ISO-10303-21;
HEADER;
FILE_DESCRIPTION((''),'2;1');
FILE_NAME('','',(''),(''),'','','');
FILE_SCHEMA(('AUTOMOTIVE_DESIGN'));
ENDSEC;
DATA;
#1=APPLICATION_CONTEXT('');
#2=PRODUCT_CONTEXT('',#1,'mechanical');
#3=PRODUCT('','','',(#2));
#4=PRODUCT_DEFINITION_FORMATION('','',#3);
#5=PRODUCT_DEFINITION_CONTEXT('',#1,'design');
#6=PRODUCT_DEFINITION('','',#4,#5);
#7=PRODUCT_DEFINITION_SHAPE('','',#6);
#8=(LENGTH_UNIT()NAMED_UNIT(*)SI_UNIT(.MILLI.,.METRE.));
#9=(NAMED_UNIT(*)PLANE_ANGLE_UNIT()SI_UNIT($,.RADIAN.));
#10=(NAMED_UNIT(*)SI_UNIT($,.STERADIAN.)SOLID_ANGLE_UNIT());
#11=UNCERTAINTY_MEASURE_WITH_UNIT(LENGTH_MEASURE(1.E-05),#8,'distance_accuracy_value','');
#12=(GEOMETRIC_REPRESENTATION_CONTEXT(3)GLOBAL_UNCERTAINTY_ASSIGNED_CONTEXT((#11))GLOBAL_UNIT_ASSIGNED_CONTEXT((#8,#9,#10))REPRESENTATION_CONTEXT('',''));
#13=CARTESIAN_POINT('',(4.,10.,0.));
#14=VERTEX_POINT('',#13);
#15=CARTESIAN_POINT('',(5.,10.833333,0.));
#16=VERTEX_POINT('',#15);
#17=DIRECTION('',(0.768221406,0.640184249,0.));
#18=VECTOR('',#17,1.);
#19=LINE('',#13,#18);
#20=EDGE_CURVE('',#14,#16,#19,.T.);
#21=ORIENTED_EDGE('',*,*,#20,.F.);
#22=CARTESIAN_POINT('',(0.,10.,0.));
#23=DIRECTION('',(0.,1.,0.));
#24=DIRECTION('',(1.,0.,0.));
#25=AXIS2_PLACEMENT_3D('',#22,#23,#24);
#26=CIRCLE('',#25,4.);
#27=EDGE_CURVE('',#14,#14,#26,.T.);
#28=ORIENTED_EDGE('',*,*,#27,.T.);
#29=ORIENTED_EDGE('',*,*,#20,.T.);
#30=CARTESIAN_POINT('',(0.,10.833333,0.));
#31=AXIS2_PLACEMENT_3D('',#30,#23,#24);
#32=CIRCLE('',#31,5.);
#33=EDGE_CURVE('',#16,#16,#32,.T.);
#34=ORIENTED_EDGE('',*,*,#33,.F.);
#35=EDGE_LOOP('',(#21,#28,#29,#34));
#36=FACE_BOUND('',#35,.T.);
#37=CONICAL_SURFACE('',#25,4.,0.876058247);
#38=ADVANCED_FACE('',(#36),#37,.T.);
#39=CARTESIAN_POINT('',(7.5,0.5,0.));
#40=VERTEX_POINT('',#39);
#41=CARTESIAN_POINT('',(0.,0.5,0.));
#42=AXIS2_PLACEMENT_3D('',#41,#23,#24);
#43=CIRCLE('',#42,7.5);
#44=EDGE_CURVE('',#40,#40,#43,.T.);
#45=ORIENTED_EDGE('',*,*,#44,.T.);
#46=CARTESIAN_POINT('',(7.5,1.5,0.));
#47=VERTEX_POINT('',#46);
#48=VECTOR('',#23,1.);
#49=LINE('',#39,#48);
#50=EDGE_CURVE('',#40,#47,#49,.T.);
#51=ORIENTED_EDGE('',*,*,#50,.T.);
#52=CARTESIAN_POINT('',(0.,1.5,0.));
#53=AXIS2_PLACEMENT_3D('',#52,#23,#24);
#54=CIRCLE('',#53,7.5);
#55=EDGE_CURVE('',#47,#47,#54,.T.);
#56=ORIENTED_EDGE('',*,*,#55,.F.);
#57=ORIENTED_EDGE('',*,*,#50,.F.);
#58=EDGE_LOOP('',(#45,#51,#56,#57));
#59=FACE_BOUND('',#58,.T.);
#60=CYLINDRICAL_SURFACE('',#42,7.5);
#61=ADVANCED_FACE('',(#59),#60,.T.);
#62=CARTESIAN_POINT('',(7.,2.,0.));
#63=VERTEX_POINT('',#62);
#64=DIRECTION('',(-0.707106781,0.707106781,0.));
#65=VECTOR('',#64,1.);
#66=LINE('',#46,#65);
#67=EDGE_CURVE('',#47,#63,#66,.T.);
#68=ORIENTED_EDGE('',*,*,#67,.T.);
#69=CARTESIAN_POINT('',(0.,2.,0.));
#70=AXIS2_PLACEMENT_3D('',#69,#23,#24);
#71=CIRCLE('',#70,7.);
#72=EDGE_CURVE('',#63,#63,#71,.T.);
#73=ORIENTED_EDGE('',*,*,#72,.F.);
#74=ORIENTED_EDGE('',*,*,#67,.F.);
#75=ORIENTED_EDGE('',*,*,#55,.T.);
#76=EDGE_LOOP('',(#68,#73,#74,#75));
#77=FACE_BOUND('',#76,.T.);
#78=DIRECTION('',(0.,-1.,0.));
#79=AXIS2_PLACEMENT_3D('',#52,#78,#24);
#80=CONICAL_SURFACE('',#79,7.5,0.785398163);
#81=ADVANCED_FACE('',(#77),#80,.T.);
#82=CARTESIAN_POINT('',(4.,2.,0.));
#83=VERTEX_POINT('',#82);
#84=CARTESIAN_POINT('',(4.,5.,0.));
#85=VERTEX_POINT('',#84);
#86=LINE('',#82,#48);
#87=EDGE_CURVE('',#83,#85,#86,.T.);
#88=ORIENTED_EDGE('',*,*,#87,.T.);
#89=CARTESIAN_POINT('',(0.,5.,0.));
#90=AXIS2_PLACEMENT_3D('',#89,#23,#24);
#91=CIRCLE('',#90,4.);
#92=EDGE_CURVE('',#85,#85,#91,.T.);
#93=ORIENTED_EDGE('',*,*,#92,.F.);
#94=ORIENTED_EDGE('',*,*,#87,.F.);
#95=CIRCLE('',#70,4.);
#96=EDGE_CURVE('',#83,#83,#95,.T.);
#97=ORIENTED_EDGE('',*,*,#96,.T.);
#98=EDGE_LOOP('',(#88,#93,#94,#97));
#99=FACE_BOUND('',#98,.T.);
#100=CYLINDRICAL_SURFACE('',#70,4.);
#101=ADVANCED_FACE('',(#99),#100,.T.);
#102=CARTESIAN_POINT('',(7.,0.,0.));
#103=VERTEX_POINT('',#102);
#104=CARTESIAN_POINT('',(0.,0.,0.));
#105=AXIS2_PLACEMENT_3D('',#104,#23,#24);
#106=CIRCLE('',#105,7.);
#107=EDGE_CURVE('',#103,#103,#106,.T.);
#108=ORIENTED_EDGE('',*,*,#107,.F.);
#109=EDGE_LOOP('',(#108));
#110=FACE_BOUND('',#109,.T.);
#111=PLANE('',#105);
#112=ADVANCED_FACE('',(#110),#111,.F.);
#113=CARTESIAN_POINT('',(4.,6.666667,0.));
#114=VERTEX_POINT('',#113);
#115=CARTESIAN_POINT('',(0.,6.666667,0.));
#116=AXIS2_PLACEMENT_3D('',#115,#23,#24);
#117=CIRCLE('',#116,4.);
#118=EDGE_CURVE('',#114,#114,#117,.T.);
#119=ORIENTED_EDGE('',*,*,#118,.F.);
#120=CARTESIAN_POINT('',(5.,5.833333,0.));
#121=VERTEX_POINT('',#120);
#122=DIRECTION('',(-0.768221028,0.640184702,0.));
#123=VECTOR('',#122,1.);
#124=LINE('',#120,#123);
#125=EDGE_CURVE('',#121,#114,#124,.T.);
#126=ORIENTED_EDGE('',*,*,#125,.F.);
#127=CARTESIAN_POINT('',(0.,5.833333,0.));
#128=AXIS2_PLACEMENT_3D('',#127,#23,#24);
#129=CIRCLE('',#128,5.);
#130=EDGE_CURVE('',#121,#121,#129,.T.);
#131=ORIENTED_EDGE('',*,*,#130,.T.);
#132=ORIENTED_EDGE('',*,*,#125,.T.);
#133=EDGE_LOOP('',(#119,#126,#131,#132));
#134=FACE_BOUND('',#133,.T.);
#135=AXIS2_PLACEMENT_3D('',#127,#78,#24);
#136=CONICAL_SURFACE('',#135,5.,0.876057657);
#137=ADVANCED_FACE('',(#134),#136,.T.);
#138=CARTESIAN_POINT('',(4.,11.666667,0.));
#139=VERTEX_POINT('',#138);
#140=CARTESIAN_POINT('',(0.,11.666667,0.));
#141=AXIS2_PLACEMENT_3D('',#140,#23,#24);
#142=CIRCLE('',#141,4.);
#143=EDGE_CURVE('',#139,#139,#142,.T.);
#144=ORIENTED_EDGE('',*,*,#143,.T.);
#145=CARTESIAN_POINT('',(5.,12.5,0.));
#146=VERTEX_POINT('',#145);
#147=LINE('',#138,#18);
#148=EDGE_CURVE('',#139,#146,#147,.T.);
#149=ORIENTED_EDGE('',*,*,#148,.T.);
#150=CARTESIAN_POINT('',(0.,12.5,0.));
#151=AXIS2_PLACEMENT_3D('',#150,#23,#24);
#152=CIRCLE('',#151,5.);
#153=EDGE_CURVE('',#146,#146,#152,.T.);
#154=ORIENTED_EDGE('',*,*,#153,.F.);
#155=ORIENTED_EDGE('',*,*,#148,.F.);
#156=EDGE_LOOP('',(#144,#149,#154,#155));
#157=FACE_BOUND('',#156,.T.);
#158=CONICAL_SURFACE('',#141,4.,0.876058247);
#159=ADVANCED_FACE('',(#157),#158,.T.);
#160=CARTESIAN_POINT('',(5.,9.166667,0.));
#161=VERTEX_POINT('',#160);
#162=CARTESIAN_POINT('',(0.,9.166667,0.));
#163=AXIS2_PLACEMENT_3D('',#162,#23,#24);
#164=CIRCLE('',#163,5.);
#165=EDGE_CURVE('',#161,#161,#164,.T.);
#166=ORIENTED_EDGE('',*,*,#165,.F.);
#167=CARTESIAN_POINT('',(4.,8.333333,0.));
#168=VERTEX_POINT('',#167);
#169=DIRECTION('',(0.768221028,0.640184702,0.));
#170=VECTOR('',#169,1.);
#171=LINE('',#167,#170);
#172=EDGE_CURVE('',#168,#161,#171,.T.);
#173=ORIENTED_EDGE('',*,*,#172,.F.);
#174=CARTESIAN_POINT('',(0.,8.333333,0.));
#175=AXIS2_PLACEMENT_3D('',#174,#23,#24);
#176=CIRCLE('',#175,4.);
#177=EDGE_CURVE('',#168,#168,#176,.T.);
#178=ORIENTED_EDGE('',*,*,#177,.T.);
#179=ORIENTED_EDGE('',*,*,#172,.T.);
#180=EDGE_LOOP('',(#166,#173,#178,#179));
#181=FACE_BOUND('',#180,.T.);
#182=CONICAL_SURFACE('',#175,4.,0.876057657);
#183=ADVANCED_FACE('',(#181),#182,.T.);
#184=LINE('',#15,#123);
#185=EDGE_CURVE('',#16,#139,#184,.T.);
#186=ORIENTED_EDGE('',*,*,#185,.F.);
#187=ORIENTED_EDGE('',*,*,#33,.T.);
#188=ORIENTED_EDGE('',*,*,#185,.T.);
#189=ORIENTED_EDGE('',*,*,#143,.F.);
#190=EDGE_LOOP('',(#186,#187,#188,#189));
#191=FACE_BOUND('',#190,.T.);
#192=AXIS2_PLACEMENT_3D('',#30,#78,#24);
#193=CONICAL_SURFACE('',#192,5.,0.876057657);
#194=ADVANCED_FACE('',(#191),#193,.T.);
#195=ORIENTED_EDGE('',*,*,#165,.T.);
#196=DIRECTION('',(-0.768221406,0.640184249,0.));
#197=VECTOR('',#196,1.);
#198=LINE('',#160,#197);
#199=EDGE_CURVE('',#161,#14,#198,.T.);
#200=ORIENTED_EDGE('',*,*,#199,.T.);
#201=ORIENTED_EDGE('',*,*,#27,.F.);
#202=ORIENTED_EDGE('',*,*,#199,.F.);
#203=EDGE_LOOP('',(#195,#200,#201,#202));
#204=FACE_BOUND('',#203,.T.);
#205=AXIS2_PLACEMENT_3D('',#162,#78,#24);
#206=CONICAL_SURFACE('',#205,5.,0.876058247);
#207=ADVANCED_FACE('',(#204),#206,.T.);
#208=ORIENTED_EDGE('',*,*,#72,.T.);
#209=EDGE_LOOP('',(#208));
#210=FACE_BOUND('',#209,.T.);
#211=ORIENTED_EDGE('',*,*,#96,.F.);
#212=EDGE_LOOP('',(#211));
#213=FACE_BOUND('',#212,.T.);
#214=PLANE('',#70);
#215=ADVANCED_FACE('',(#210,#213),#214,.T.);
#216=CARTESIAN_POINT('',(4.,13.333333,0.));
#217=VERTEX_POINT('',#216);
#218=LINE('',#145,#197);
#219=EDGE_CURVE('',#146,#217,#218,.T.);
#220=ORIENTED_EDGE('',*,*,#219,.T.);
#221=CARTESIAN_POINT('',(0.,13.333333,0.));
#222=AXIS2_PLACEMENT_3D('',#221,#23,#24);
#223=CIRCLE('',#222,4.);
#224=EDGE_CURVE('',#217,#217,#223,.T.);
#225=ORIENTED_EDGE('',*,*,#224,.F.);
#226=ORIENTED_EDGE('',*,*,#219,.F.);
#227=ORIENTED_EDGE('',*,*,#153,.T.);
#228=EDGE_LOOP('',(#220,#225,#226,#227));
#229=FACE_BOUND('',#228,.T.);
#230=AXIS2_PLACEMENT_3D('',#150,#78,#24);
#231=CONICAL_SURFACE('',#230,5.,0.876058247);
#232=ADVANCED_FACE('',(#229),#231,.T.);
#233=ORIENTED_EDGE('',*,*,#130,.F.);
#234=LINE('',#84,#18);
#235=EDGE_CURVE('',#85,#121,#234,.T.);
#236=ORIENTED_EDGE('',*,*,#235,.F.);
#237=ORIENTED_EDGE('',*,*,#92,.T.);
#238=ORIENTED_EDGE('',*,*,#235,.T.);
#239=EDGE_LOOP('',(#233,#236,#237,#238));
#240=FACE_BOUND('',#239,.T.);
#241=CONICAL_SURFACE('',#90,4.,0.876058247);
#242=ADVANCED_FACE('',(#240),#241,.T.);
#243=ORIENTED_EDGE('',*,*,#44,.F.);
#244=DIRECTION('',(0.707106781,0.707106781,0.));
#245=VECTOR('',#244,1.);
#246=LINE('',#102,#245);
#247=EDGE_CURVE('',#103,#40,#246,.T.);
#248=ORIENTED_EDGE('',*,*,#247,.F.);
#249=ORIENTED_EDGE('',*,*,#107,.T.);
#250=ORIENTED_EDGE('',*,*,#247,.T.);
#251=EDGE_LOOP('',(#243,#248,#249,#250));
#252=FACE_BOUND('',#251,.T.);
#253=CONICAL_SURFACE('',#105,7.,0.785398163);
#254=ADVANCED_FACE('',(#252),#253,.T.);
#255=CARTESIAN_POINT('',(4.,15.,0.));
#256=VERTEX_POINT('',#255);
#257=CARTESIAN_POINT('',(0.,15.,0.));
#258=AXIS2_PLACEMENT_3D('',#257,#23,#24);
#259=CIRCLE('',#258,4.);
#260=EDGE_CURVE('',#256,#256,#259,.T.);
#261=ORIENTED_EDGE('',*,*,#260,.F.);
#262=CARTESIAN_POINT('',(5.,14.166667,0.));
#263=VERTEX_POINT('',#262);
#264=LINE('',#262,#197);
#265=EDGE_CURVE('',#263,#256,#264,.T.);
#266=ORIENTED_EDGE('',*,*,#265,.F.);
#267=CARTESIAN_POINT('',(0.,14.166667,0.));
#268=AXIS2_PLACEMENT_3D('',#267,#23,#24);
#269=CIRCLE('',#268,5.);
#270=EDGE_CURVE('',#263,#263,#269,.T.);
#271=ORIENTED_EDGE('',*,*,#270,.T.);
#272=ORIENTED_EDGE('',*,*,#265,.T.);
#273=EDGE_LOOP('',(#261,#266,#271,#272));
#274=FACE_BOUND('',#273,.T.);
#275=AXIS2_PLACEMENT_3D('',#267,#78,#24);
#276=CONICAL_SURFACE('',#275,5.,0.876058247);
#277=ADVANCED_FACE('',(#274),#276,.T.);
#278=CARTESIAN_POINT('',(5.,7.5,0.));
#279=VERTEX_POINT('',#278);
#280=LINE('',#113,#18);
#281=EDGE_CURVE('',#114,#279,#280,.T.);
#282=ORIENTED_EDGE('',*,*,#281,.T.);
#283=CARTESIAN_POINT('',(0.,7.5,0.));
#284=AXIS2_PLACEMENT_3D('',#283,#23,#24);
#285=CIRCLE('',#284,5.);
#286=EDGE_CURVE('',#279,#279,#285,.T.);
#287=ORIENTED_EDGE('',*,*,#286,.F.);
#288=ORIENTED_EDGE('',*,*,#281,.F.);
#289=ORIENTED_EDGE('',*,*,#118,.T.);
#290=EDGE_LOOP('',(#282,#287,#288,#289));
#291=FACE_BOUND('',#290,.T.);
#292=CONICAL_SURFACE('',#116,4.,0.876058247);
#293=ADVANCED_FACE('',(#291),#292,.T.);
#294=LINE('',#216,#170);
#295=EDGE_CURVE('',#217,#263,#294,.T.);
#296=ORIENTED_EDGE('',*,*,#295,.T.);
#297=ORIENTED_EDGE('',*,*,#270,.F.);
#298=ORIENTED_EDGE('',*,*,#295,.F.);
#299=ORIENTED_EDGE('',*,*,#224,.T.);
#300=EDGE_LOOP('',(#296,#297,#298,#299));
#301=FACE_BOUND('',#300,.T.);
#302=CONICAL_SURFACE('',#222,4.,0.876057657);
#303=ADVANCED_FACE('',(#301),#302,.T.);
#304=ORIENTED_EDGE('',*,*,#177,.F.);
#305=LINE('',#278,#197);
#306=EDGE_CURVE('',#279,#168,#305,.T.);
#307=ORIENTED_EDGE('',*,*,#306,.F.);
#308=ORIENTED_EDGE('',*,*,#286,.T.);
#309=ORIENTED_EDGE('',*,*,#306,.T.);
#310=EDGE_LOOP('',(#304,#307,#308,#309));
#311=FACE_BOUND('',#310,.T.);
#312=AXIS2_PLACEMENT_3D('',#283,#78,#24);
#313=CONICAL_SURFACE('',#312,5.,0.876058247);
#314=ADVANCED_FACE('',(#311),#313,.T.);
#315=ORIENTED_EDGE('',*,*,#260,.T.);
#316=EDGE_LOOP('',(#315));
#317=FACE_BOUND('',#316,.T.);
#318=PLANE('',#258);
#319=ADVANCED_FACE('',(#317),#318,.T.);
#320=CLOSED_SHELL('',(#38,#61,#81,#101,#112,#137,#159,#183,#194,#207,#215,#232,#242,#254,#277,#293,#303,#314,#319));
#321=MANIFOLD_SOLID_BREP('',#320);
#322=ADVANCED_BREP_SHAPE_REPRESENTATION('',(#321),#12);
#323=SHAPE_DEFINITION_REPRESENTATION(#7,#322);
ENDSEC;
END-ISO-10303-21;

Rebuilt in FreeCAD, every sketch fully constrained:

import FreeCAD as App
import Part
import Sketcher
from FreeCAD import Vector

doc = App.newDocument("Part")
body = doc.addObject("PartDesign::Body", "Body")

# Sketch on XY plane
sketch1 = body.newObject("Sketcher::SketchObject", "Sketch")
sketch1.AttachmentSupport = (doc.getObject("XY_Plane"), [""])
sketch1.MapMode = "FlatFace"
sketch1.addGeometry(Part.LineSegment(Vector(0, 15, 0), Vector(0, 0, 0)), False)
sketch1.addGeometry(Part.LineSegment(Vector(0, 0, 0), Vector(7, 0, 0)), False)
sketch1.addGeometry(Part.LineSegment(Vector(7, 0, 0), Vector(7.5, 0.5, 0)), False)
sketch1.addGeometry(Part.LineSegment(Vector(7.5, 0.5, 0), Vector(7.5, 1.5, 0)), False)
sketch1.addGeometry(Part.LineSegment(Vector(7.5, 1.5, 0), Vector(7, 2, 0)), False)
sketch1.addGeometry(Part.LineSegment(Vector(7, 2, 0), Vector(4, 2, 0)), False)
sketch1.addGeometry(Part.LineSegment(Vector(4, 2, 0), Vector(4, 5, 0)), False)
sketch1.addGeometry(Part.LineSegment(Vector(4, 5, 0), Vector(5, 5.833333, 0)), False)
sketch1.addGeometry(Part.LineSegment(Vector(5, 5.833333, 0), Vector(4, 6.666667, 0)), False)
sketch1.addGeometry(Part.LineSegment(Vector(4, 6.666667, 0), Vector(5, 7.5, 0)), False)
sketch1.addGeometry(Part.LineSegment(Vector(5, 7.5, 0), Vector(4, 8.333333, 0)), False)
sketch1.addGeometry(Part.LineSegment(Vector(4, 8.333333, 0), Vector(5, 9.166667, 0)), False)
sketch1.addGeometry(Part.LineSegment(Vector(5, 9.166667, 0), Vector(4, 10, 0)), False)
sketch1.addGeometry(Part.LineSegment(Vector(4, 10, 0), Vector(5, 10.833333, 0)), False)
sketch1.addGeometry(Part.LineSegment(Vector(5, 10.833333, 0), Vector(4, 11.666667, 0)), False)
sketch1.addGeometry(Part.LineSegment(Vector(4, 11.666667, 0), Vector(5, 12.5, 0)), False)
sketch1.addGeometry(Part.LineSegment(Vector(5, 12.5, 0), Vector(4, 13.333333, 0)), False)
sketch1.addGeometry(Part.LineSegment(Vector(4, 13.333333, 0), Vector(5, 14.166667, 0)), False)
sketch1.addGeometry(Part.LineSegment(Vector(5, 14.166667, 0), Vector(4, 15, 0)), False)
sketch1.addGeometry(Part.LineSegment(Vector(4, 15, 0), Vector(0, 15, 0)), False)
sketch1.addConstraint(Sketcher.Constraint("Coincident", 0, 2, 1, 1))
sketch1.addConstraint(Sketcher.Constraint("Coincident", 1, 2, 2, 1))
sketch1.addConstraint(Sketcher.Constraint("Coincident", 2, 2, 3, 1))
sketch1.addConstraint(Sketcher.Constraint("Coincident", 3, 2, 4, 1))
sketch1.addConstraint(Sketcher.Constraint("Coincident", 4, 2, 5, 1))
sketch1.addConstraint(Sketcher.Constraint("Coincident", 5, 2, 6, 1))
sketch1.addConstraint(Sketcher.Constraint("Coincident", 6, 2, 7, 1))
sketch1.addConstraint(Sketcher.Constraint("Coincident", 7, 2, 8, 1))
sketch1.addConstraint(Sketcher.Constraint("Coincident", 8, 2, 9, 1))
sketch1.addConstraint(Sketcher.Constraint("Coincident", 9, 2, 10, 1))
sketch1.addConstraint(Sketcher.Constraint("Coincident", 10, 2, 11, 1))
sketch1.addConstraint(Sketcher.Constraint("Coincident", 11, 2, 12, 1))
sketch1.addConstraint(Sketcher.Constraint("Coincident", 12, 2, 13, 1))
sketch1.addConstraint(Sketcher.Constraint("Coincident", 13, 2, 14, 1))
sketch1.addConstraint(Sketcher.Constraint("Coincident", 14, 2, 15, 1))
sketch1.addConstraint(Sketcher.Constraint("Coincident", 15, 2, 16, 1))
sketch1.addConstraint(Sketcher.Constraint("Coincident", 16, 2, 17, 1))
sketch1.addConstraint(Sketcher.Constraint("Coincident", 17, 2, 18, 1))
sketch1.addConstraint(Sketcher.Constraint("Coincident", 18, 2, 19, 1))
sketch1.addConstraint(Sketcher.Constraint("Coincident", 19, 2, 0, 1))
sketch1.addConstraint(Sketcher.Constraint("Vertical", 0))
sketch1.addConstraint(Sketcher.Constraint("Horizontal", 1))
sketch1.addConstraint(Sketcher.Constraint("Vertical", 3))
sketch1.addConstraint(Sketcher.Constraint("Horizontal", 5))
sketch1.addConstraint(Sketcher.Constraint("Vertical", 6))
sketch1.addConstraint(Sketcher.Constraint("Horizontal", 19))
sketch1.addConstraint(Sketcher.Constraint("Coincident", 0, 2, -1, 1))
sketch1.addConstraint(Sketcher.Constraint("Perpendicular", 2, 4))
sketch1.addConstraint(Sketcher.Constraint("Parallel", 7, 9))
sketch1.addConstraint(Sketcher.Constraint("Parallel", 8, 10))
sketch1.addConstraint(Sketcher.Constraint("Parallel", 9, 11))
sketch1.addConstraint(Sketcher.Constraint("Parallel", 10, 12))
sketch1.addConstraint(Sketcher.Constraint("Parallel", 11, 13))
sketch1.addConstraint(Sketcher.Constraint("Parallel", 12, 14))
sketch1.addConstraint(Sketcher.Constraint("Parallel", 13, 15))
sketch1.addConstraint(Sketcher.Constraint("Parallel", 14, 16))
sketch1.addConstraint(Sketcher.Constraint("Parallel", 15, 17))
sketch1.addConstraint(Sketcher.Constraint("Parallel", 16, 18))
sketch1.addConstraint(Sketcher.Constraint("Vertical", 1, 2, 4, 2))
sketch1.addConstraint(Sketcher.Constraint("Vertical", 6, 2, 8, 2))
sketch1.addConstraint(Sketcher.Constraint("Vertical", 7, 2, 9, 2))
sketch1.addConstraint(Sketcher.Constraint("Vertical", 8, 2, 10, 2))
sketch1.addConstraint(Sketcher.Constraint("Vertical", 9, 2, 11, 2))
sketch1.addConstraint(Sketcher.Constraint("Vertical", 10, 2, 12, 2))
sketch1.addConstraint(Sketcher.Constraint("Vertical", 11, 2, 13, 2))
sketch1.addConstraint(Sketcher.Constraint("Vertical", 12, 2, 14, 2))
sketch1.addConstraint(Sketcher.Constraint("Vertical", 13, 2, 15, 2))
sketch1.addConstraint(Sketcher.Constraint("Vertical", 14, 2, 16, 2))
sketch1.addConstraint(Sketcher.Constraint("Vertical", 15, 2, 17, 2))
sketch1.addConstraint(Sketcher.Constraint("Vertical", 16, 2, 18, 2))
sketch1.addConstraint(Sketcher.Constraint("Equal", 5, 6))
sketch1.addConstraint(Sketcher.Constraint("Equal", 2, 4))
sketch1.addConstraint(Sketcher.Constraint("Equal", 7, 8))
sketch1.addConstraint(Sketcher.Constraint("DistanceX", 1, 1, 1, 2, 7.0))
sketch1.addConstraint(Sketcher.Constraint("DistanceX", 5, 2, 5, 1, 3.0))
sketch1.addConstraint(Sketcher.Constraint("DistanceY", 0, 2, 0, 1, 15.0))
sketch1.addConstraint(Sketcher.Constraint("DistanceY", 3, 1, 3, 2, 1.0))
sketch1.addConstraint(Sketcher.Constraint("DistanceY", -1, 1, 4, 2, 2.0))
sketch1.addConstraint(Sketcher.Constraint("DistanceX", -1, 1, 7, 2, 5.0))
revolution = body.newObject("PartDesign::Revolution", "Revolution")
revolution.Profile = sketch1
revolution.ReferenceAxis = (sketch1, ["V_Axis"])
revolution.Angle = 360

doc.recompute()
